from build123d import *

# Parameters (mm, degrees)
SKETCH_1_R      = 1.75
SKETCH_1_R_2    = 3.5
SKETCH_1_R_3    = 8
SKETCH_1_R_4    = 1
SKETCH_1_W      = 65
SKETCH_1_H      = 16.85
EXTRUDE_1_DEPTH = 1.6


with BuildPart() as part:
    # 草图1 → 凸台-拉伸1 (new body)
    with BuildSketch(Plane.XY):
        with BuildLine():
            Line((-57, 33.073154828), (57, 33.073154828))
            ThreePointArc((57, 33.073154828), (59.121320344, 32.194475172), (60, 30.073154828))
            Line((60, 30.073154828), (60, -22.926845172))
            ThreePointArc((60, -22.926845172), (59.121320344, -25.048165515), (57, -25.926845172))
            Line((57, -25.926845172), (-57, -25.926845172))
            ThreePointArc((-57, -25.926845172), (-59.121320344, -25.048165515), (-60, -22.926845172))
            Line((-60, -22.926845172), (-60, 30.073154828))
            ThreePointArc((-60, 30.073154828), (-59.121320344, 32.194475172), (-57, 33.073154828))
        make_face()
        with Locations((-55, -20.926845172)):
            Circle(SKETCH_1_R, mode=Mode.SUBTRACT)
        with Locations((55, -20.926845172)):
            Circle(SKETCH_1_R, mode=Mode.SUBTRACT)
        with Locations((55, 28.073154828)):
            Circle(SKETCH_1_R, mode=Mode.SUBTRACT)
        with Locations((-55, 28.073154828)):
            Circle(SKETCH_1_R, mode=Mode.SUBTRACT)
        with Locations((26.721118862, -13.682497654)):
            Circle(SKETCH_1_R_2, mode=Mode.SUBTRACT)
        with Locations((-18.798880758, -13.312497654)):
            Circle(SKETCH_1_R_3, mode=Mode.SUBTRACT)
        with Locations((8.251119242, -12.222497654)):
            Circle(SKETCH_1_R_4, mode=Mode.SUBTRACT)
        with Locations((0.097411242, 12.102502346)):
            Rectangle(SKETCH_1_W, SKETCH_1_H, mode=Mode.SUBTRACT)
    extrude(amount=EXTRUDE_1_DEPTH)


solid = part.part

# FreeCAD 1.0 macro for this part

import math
import FreeCAD as App
import Part
import Sketcher

V = App.Vector
Q = App.Units.Quantity

doc = App.newDocument("Part")
body = doc.addObject("PartDesign::Body", "Body")

# Sketch on XY plane
sketch1 = doc.addObject("Sketcher::SketchObject", "Sketch")
body.addObject(sketch1)
sketch1.AttachmentSupport = (doc.XY_Plane, [""])
sketch1.MapMode = "FlatFace"
sketch1.addGeometry(Part.LineSegment(V(57, 33.1, 0), V(-57, 33.1, 0)), False)
sketch1.addGeometry(Part.ArcOfCircle(Part.Circle(V(-57, 30.1, 0), V(0, 0, 1), 3), math.radians(90), math.radians(180)), False)
sketch1.addGeometry(Part.LineSegment(V(-60, 30.1, 0), V(-60, -22.9, 0)), False)
sketch1.addGeometry(Part.ArcOfCircle(Part.Circle(V(-57, -22.9, 0), V(0, 0, 1), 3), math.radians(180), math.radians(270)), False)
sketch1.addGeometry(Part.LineSegment(V(-57, -25.9, 0), V(57, -25.9, 0)), False)
sketch1.addGeometry(Part.ArcOfCircle(Part.Circle(V(57, -22.9, 0), V(0, 0, 1), 3), math.radians(-90), math.radians(0)), False)
sketch1.addGeometry(Part.LineSegment(V(60, -22.9, 0), V(60, 30.1, 0)), False)
sketch1.addGeometry(Part.ArcOfCircle(Part.Circle(V(57, 30.1, 0), V(0, 0, 1), 3), math.radians(0), math.radians(90)), False)
sketch1.addGeometry(Part.Circle(V(55, -20.9, 0), V(0, 0, 1), 1.8), False)
sketch1.addGeometry(Part.Circle(V(26.7, -13.7, 0), V(0, 0, 1), 3.5), False)
sketch1.addGeometry(Part.Circle(V(8.3, -12.2, 0), V(0, 0, 1), 1), False)
sketch1.addGeometry(Part.Circle(V(-18.8, -13.3, 0), V(0, 0, 1), 8), False)
sketch1.addGeometry(Part.Circle(V(-55, -20.9, 0), V(0, 0, 1), 1.8), False)
sketch1.addGeometry(Part.LineSegment(V(-32.4, 3.7, 0), V(-32.4, 20.5, 0)), False)
sketch1.addGeometry(Part.LineSegment(V(-32.4, 20.5, 0), V(32.6, 20.5, 0)), False)
sketch1.addGeometry(Part.LineSegment(V(32.6, 20.5, 0), V(32.6, 3.7, 0)), False)
sketch1.addGeometry(Part.LineSegment(V(32.6, 3.7, 0), V(-32.4, 3.7, 0)), False)
sketch1.addGeometry(Part.Circle(V(55, 28.1, 0), V(0, 0, 1), 1.8), False)
sketch1.addGeometry(Part.Circle(V(-55, 28.1, 0), V(0, 0, 1), 1.8), False)
sketch1.addConstraint(Sketcher.Constraint("Tangent", 0, 2, 1, 1))
sketch1.addConstraint(Sketcher.Constraint("Tangent", 1, 2, 2, 1))
sketch1.addConstraint(Sketcher.Constraint("Tangent", 2, 2, 3, 1))
sketch1.addConstraint(Sketcher.Constraint("Tangent", 3, 2, 4, 1))
sketch1.addConstraint(Sketcher.Constraint("Tangent", 4, 2, 5, 1))
sketch1.addConstraint(Sketcher.Constraint("Tangent", 5, 2, 6, 1))
sketch1.addConstraint(Sketcher.Constraint("Tangent", 6, 2, 7, 1))
sketch1.addConstraint(Sketcher.Constraint("Tangent", 7, 2, 0, 1))
sketch1.addConstraint(Sketcher.Constraint("Coincident", 13, 2, 14, 1))
sketch1.addConstraint(Sketcher.Constraint("Coincident", 14, 2, 15, 1))
sketch1.addConstraint(Sketcher.Constraint("Coincident", 15, 2, 16, 1))
sketch1.addConstraint(Sketcher.Constraint("Coincident", 16, 2, 13, 1))
sketch1.addConstraint(Sketcher.Constraint("Horizontal", 0))
sketch1.addConstraint(Sketcher.Constraint("Vertical", 2))
sketch1.addConstraint(Sketcher.Constraint("Horizontal", 4))
sketch1.addConstraint(Sketcher.Constraint("Vertical", 6))
sketch1.addConstraint(Sketcher.Constraint("Vertical", 13))
sketch1.addConstraint(Sketcher.Constraint("Horizontal", 14))
sketch1.addConstraint(Sketcher.Constraint("Vertical", 15))
sketch1.addConstraint(Sketcher.Constraint("Horizontal", 16))
sketch1.addConstraint(Sketcher.Constraint("Equal", 1, 3))
sketch1.addConstraint(Sketcher.Constraint("Equal", 3, 5))
sketch1.addConstraint(Sketcher.Constraint("Equal", 5, 7))
sketch1.addConstraint(Sketcher.Constraint("Equal", 8, 12))
sketch1.addConstraint(Sketcher.Constraint("Equal", 12, 17))
sketch1.addConstraint(Sketcher.Constraint("Equal", 17, 18))
sketch1.addConstraint(Sketcher.Constraint("Symmetric", 8, 3, 12, 3, -2))
sketch1.addConstraint(Sketcher.Constraint("Symmetric", 17, 3, 18, 3, -2))
sketch1.addConstraint(Sketcher.Constraint("Vertical", 8, 3, 17, 3))
sketch1.addConstraint(Sketcher.Constraint("Diameter", 9, Q("7 mm")))
sketch1.addConstraint(Sketcher.Constraint("Diameter", 10, Q("2 mm")))
sketch1.addConstraint(Sketcher.Constraint("Diameter", 11, Q("16 mm")))
sketch1.addConstraint(Sketcher.Constraint("Radius", 1, Q("3 mm")))
sketch1.addConstraint(Sketcher.Constraint("Diameter", 8, Q("3.5 mm")))
sketch1.addConstraint(Sketcher.Constraint("DistanceX", 0, 2, 0, 1, Q("114 mm")))
sketch1.addConstraint(Sketcher.Constraint("DistanceX", 14, 1, 14, 2, Q("65 mm")))
sketch1.addConstraint(Sketcher.Constraint("DistanceY", 2, 2, 2, 1, Q("53 mm")))
sketch1.addConstraint(Sketcher.Constraint("DistanceX", 1, 3, -1, 1, Q("57 mm")))
sketch1.addConstraint(Sketcher.Constraint("DistanceX", -1, 1, 8, 3, Q("55 mm")))
sketch1.addConstraint(Sketcher.Constraint("DistanceY", 5, 3, 8, 3, Q("2 mm")))
sketch1.addConstraint(Sketcher.Constraint("DistanceY", 17, 3, 7, 3, Q("2 mm")))
sketch1.addConstraint(Sketcher.Constraint("DistanceY", 13, 1, 13, 2, Q("16.85 mm")))
sketch1.addConstraint(Sketcher.Constraint("DistanceY", 10, 3, 15, 2, Q("15.9 mm")))
sketch1.addConstraint(Sketcher.Constraint("DistanceX", 10, 3, 9, 3, Q("18.47 mm")))
sketch1.addConstraint(Sketcher.Constraint("DistanceY", 9, 3, 10, 3, Q("1.46 mm")))
sketch1.addConstraint(Sketcher.Constraint("DistanceX", 11, 3, 10, 3, Q("27.05 mm")))
sketch1.addConstraint(Sketcher.Constraint("DistanceY", 11, 3, 10, 3, Q("1.09 mm")))
sketch1.addConstraint(Sketcher.Constraint("DistanceX", -1, 1, 9, 3, Q("26.721119 mm")))
sketch1.addConstraint(Sketcher.Constraint("DistanceX", 13, 2, -1, 1, Q("32.402589 mm")))
sketch1.addConstraint(Sketcher.Constraint("DistanceY", -1, 1, 1, 3, Q("30.073155 mm")))
sketch1.addConstraint(Sketcher.Constraint("DistanceY", 9, 3, -1, 1, Q("13.682498 mm")))
pad1 = doc.addObject("PartDesign::Pad", "Pad")
body.addObject(pad1)
pad1.Profile = sketch1
pad1.Length = 1.6

doc.recompute()
